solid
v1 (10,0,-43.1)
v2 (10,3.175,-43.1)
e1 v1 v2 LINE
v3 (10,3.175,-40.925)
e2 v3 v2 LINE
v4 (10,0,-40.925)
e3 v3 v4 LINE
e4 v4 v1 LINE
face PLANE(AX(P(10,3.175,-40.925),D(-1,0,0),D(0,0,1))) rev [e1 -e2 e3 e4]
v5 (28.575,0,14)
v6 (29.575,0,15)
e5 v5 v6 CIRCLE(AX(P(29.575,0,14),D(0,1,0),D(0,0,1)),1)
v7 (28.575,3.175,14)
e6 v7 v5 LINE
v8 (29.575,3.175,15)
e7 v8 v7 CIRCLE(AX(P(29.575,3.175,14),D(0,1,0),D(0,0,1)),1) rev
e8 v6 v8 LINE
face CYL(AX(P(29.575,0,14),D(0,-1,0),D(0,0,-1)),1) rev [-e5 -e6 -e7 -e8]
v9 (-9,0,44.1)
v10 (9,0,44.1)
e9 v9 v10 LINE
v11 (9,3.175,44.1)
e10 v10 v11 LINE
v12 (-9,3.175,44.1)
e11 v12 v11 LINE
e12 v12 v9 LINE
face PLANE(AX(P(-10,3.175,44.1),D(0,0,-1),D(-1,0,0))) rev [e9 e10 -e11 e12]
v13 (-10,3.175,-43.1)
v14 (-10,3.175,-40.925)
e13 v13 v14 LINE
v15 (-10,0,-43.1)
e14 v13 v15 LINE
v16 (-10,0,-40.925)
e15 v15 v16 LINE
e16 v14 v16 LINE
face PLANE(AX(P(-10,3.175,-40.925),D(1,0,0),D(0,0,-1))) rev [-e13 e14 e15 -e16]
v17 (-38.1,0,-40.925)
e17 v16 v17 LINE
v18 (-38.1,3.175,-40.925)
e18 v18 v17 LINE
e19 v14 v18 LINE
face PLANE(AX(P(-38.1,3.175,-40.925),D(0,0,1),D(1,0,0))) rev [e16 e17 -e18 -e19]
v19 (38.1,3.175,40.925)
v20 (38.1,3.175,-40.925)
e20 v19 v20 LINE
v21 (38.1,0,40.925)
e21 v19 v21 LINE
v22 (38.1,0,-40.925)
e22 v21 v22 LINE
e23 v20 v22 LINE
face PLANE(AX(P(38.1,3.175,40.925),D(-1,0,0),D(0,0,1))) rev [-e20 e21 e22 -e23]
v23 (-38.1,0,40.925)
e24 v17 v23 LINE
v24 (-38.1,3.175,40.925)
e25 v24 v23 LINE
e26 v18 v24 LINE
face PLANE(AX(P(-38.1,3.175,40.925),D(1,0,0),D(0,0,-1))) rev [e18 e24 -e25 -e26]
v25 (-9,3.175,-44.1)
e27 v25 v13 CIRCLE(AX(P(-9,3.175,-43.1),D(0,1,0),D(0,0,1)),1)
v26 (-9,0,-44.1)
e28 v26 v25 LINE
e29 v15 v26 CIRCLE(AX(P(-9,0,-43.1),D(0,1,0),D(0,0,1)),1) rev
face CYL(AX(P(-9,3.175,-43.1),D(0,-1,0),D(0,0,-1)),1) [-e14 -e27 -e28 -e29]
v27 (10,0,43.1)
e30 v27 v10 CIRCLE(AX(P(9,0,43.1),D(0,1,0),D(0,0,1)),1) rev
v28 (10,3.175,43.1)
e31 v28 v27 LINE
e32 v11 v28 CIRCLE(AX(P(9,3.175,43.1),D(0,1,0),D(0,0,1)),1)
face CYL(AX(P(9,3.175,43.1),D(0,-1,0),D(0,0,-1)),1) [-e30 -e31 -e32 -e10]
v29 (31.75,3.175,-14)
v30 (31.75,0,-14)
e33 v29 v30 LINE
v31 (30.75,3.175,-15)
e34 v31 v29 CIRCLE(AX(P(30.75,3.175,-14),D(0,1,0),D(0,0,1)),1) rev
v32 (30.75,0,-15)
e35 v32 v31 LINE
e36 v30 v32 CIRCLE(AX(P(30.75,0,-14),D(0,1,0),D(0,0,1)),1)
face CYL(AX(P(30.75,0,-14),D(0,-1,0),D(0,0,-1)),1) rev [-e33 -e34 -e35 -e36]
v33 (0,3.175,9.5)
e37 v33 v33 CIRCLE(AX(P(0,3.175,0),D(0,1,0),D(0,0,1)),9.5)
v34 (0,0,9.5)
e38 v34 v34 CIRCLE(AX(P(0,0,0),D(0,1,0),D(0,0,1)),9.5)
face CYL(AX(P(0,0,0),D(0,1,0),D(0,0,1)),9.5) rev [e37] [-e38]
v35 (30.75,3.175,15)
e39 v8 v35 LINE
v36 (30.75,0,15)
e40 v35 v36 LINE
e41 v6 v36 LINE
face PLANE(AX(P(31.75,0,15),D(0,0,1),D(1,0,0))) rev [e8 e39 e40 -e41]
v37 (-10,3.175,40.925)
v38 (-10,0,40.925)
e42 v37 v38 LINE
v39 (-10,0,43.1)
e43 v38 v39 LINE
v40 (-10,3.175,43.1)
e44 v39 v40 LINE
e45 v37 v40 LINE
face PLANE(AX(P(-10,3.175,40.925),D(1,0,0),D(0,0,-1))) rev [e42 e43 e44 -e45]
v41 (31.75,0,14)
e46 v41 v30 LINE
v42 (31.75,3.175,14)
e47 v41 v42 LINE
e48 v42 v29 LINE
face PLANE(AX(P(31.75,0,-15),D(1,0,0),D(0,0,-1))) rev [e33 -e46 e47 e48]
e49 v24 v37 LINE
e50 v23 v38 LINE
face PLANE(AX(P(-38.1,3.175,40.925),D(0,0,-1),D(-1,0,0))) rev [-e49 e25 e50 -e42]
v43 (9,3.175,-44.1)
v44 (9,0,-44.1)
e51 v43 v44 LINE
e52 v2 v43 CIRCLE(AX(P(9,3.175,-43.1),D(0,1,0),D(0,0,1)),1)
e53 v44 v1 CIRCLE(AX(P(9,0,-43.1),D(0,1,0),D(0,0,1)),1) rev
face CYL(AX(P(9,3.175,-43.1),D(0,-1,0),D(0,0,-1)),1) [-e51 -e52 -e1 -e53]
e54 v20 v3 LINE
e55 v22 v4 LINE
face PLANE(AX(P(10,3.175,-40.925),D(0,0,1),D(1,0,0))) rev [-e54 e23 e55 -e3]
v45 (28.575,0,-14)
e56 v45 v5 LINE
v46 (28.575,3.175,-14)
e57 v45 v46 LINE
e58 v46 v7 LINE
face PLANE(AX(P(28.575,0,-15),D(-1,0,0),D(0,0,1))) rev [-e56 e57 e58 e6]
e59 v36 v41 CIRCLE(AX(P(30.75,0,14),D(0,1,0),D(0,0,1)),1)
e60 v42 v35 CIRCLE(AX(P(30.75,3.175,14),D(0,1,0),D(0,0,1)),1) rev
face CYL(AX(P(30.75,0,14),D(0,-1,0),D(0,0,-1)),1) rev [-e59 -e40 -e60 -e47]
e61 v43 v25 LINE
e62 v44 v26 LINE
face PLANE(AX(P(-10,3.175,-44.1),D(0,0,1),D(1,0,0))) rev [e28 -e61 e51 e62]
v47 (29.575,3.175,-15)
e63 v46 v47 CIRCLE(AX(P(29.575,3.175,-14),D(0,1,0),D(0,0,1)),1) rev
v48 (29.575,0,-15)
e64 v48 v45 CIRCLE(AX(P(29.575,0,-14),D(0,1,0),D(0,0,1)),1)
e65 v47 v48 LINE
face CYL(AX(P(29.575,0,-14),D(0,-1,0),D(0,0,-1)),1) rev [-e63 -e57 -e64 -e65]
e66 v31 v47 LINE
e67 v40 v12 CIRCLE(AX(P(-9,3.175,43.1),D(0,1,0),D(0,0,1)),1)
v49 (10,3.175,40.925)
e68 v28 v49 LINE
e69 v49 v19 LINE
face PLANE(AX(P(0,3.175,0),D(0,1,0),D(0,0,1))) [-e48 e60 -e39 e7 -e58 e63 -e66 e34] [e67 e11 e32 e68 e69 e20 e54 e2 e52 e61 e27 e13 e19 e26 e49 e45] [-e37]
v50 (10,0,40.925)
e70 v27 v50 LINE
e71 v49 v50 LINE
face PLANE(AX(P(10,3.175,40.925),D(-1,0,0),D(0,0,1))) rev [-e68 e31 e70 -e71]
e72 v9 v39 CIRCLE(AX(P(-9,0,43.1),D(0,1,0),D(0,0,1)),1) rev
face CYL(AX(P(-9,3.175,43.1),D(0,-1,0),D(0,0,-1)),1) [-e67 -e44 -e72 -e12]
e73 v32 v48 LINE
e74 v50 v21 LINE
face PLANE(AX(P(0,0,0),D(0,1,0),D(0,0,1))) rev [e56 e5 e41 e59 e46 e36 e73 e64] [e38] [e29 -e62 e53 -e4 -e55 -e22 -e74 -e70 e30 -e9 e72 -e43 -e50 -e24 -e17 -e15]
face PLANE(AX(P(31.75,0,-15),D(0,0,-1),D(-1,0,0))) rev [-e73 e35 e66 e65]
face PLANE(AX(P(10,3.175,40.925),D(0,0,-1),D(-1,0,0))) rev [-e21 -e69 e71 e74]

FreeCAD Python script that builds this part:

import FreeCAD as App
import Part
import Sketcher

V = App.Vector


def edges_at(feature, points):
    """Names of the edges that pass closest to the given points."""
    edges = feature.Shape.Edges
    near = lambda p: min(range(len(edges)), key=lambda i: edges[i].distToShape(Part.Vertex(*p))[0])
    return sorted({f"Edge{near(p) + 1}" for p in points})

doc = App.newDocument("Part")
body = doc.addObject("PartDesign::Body", "Body")

sketch1 = body.newObject("Sketcher::SketchObject", "Sketch")
sketch1.AttachmentSupport = (doc.getObject("XZ_Plane"), [""])
sketch1.MapMode = "FlatFace"
sketch1.addGeometry([
    Part.LineSegment(V(-38.1, 40.9, 0), V(-10, 40.9, 0)),
    Part.LineSegment(V(-10, 40.9, 0), V(-10, 44.1, 0)),
    Part.LineSegment(V(-10, 44.1, 0), V(10, 44.1, 0)),
    Part.LineSegment(V(10, 44.1, 0), V(10, 40.9, 0)),
    Part.LineSegment(V(10, 40.9, 0), V(38.1, 40.9, 0)),
    Part.LineSegment(V(38.1, 40.9, 0), V(38.1, -40.9, 0)),
    Part.LineSegment(V(38.1, -40.9, 0), V(10, -40.9, 0)),
    Part.LineSegment(V(10, -40.9, 0), V(10, -44.1, 0)),
    Part.LineSegment(V(10, -44.1, 0), V(-10, -44.1, 0)),
    Part.LineSegment(V(-10, -44.1, 0), V(-10, -40.9, 0)),
    Part.LineSegment(V(-10, -40.9, 0), V(-38.1, -40.9, 0)),
    Part.LineSegment(V(-38.1, -40.9, 0), V(-38.1, 40.9, 0)),
], False)
sketch1.addConstraint([
    Sketcher.Constraint("Coincident", 0, 2, 1, 1),
    Sketcher.Constraint("Coincident", 1, 2, 2, 1),
    Sketcher.Constraint("Coincident", 2, 2, 3, 1),
    Sketcher.Constraint("Coincident", 3, 2, 4, 1),
    Sketcher.Constraint("Coincident", 4, 2, 5, 1),
    Sketcher.Constraint("Coincident", 5, 2, 6, 1),
    Sketcher.Constraint("Coincident", 6, 2, 7, 1),
    Sketcher.Constraint("Coincident", 7, 2, 8, 1),
    Sketcher.Constraint("Coincident", 8, 2, 9, 1),
    Sketcher.Constraint("Coincident", 9, 2, 10, 1),
    Sketcher.Constraint("Coincident", 10, 2, 11, 1),
    Sketcher.Constraint("Coincident", 11, 2, 0, 1),
    Sketcher.Constraint("Horizontal", 0),
    Sketcher.Constraint("Vertical", 1),
    Sketcher.Constraint("Horizontal", 2),
    Sketcher.Constraint("Vertical", 3),
    Sketcher.Constraint("Horizontal", 4),
    Sketcher.Constraint("Vertical", 5),
    Sketcher.Constraint("Horizontal", 6),
    Sketcher.Constraint("Vertical", 7),
    Sketcher.Constraint("Horizontal", 8),
    Sketcher.Constraint("Vertical", 9),
    Sketcher.Constraint("Horizontal", 10),
    Sketcher.Constraint("Vertical", 11),
    Sketcher.Constraint("Symmetric", 0, 2, 6, 2, -1, 1),
    Sketcher.Constraint("Symmetric", 2, 2, 8, 2, -1, 1),
    Sketcher.Constraint("Symmetric", 4, 2, 10, 2, -1, 1),
    Sketcher.Constraint("Symmetric", 0, 2, 3, 2, -2),
    Sketcher.Constraint("DistanceX", 2, 1, 2, 2, 20.0),
    Sketcher.Constraint("DistanceX", 0, 1, 0, 2, 28.1),
    Sketcher.Constraint("DistanceY", 5, 2, 5, 1, 81.85),
    Sketcher.Constraint("DistanceY", -1, 1, 1, 2, 44.1),
])
pad1 = body.newObject("PartDesign::Pad", "Pad")
pad1.Profile = sketch1
pad1.Length = 3.175
pad1.Reversed = True

sketch2 = body.newObject("Sketcher::SketchObject", "Sketch001")
sketch2.AttachmentSupport = (doc.getObject("XZ_Plane"), [""])
sketch2.MapMode = "FlatFace"
sketch2.AttachmentOffset = App.Placement(V(0, 0, -3.175), App.Rotation())
sketch2.addGeometry([
    Part.Circle(V(0, 0, 0), V(0, 0, 1), 9.5),
    Part.LineSegment(V(28.6, -15, 0), V(28.6, 15, 0)),
    Part.LineSegment(V(28.6, 15, 0), V(31.8, 15, 0)),
    Part.LineSegment(V(31.8, 15, 0), V(31.8, -15, 0)),
    Part.LineSegment(V(31.8, -15, 0), V(28.6, -15, 0)),
], False)
sketch2.addConstraint([
    Sketcher.Constraint("Coincident", 1, 2, 2, 1),
    Sketcher.Constraint("Coincident", 2, 2, 3, 1),
    Sketcher.Constraint("Coincident", 3, 2, 4, 1),
    Sketcher.Constraint("Coincident", 4, 2, 1, 1),
    Sketcher.Constraint("Vertical", 1),
    Sketcher.Constraint("Horizontal", 2),
    Sketcher.Constraint("Vertical", 3),
    Sketcher.Constraint("Horizontal", 4),
    Sketcher.Constraint("Coincident", 0, 3, -1, 1),
    Sketcher.Constraint("Diameter", 0, 19.0),
    Sketcher.Constraint("DistanceY", 1, 1, 1, 2, 30.0),
    Sketcher.Constraint("DistanceY", -1, 1, 1, 2, 15.0),
    Sketcher.Constraint("DistanceX", 2, 1, 2, 2, 3.175),
    Sketcher.Constraint("DistanceX", -1, 1, 2, 2, 31.75),
])
pocket1 = body.newObject("PartDesign::Pocket", "Pocket")
pocket1.Profile = sketch2
pocket1.Type = "ThroughAll"
pocket1.Reversed = True
doc.recompute()

fillet = body.newObject("PartDesign::Fillet", "Fillet")
fillet.Base = (pocket1, edges_at(pocket1, [
    (10, 1.587, 44.1),
    (-10, 1.587, 44.1),
    (-10, 1.587, -44.1),
    (10, 1.587, -44.1),
    (28.575, 1.587, 15),
    (28.575, 1.587, -15),
    (31.75, 1.587, -15),
    (31.75, 1.587, 15),
]))
fillet.Radius = 1

doc.recompute()
